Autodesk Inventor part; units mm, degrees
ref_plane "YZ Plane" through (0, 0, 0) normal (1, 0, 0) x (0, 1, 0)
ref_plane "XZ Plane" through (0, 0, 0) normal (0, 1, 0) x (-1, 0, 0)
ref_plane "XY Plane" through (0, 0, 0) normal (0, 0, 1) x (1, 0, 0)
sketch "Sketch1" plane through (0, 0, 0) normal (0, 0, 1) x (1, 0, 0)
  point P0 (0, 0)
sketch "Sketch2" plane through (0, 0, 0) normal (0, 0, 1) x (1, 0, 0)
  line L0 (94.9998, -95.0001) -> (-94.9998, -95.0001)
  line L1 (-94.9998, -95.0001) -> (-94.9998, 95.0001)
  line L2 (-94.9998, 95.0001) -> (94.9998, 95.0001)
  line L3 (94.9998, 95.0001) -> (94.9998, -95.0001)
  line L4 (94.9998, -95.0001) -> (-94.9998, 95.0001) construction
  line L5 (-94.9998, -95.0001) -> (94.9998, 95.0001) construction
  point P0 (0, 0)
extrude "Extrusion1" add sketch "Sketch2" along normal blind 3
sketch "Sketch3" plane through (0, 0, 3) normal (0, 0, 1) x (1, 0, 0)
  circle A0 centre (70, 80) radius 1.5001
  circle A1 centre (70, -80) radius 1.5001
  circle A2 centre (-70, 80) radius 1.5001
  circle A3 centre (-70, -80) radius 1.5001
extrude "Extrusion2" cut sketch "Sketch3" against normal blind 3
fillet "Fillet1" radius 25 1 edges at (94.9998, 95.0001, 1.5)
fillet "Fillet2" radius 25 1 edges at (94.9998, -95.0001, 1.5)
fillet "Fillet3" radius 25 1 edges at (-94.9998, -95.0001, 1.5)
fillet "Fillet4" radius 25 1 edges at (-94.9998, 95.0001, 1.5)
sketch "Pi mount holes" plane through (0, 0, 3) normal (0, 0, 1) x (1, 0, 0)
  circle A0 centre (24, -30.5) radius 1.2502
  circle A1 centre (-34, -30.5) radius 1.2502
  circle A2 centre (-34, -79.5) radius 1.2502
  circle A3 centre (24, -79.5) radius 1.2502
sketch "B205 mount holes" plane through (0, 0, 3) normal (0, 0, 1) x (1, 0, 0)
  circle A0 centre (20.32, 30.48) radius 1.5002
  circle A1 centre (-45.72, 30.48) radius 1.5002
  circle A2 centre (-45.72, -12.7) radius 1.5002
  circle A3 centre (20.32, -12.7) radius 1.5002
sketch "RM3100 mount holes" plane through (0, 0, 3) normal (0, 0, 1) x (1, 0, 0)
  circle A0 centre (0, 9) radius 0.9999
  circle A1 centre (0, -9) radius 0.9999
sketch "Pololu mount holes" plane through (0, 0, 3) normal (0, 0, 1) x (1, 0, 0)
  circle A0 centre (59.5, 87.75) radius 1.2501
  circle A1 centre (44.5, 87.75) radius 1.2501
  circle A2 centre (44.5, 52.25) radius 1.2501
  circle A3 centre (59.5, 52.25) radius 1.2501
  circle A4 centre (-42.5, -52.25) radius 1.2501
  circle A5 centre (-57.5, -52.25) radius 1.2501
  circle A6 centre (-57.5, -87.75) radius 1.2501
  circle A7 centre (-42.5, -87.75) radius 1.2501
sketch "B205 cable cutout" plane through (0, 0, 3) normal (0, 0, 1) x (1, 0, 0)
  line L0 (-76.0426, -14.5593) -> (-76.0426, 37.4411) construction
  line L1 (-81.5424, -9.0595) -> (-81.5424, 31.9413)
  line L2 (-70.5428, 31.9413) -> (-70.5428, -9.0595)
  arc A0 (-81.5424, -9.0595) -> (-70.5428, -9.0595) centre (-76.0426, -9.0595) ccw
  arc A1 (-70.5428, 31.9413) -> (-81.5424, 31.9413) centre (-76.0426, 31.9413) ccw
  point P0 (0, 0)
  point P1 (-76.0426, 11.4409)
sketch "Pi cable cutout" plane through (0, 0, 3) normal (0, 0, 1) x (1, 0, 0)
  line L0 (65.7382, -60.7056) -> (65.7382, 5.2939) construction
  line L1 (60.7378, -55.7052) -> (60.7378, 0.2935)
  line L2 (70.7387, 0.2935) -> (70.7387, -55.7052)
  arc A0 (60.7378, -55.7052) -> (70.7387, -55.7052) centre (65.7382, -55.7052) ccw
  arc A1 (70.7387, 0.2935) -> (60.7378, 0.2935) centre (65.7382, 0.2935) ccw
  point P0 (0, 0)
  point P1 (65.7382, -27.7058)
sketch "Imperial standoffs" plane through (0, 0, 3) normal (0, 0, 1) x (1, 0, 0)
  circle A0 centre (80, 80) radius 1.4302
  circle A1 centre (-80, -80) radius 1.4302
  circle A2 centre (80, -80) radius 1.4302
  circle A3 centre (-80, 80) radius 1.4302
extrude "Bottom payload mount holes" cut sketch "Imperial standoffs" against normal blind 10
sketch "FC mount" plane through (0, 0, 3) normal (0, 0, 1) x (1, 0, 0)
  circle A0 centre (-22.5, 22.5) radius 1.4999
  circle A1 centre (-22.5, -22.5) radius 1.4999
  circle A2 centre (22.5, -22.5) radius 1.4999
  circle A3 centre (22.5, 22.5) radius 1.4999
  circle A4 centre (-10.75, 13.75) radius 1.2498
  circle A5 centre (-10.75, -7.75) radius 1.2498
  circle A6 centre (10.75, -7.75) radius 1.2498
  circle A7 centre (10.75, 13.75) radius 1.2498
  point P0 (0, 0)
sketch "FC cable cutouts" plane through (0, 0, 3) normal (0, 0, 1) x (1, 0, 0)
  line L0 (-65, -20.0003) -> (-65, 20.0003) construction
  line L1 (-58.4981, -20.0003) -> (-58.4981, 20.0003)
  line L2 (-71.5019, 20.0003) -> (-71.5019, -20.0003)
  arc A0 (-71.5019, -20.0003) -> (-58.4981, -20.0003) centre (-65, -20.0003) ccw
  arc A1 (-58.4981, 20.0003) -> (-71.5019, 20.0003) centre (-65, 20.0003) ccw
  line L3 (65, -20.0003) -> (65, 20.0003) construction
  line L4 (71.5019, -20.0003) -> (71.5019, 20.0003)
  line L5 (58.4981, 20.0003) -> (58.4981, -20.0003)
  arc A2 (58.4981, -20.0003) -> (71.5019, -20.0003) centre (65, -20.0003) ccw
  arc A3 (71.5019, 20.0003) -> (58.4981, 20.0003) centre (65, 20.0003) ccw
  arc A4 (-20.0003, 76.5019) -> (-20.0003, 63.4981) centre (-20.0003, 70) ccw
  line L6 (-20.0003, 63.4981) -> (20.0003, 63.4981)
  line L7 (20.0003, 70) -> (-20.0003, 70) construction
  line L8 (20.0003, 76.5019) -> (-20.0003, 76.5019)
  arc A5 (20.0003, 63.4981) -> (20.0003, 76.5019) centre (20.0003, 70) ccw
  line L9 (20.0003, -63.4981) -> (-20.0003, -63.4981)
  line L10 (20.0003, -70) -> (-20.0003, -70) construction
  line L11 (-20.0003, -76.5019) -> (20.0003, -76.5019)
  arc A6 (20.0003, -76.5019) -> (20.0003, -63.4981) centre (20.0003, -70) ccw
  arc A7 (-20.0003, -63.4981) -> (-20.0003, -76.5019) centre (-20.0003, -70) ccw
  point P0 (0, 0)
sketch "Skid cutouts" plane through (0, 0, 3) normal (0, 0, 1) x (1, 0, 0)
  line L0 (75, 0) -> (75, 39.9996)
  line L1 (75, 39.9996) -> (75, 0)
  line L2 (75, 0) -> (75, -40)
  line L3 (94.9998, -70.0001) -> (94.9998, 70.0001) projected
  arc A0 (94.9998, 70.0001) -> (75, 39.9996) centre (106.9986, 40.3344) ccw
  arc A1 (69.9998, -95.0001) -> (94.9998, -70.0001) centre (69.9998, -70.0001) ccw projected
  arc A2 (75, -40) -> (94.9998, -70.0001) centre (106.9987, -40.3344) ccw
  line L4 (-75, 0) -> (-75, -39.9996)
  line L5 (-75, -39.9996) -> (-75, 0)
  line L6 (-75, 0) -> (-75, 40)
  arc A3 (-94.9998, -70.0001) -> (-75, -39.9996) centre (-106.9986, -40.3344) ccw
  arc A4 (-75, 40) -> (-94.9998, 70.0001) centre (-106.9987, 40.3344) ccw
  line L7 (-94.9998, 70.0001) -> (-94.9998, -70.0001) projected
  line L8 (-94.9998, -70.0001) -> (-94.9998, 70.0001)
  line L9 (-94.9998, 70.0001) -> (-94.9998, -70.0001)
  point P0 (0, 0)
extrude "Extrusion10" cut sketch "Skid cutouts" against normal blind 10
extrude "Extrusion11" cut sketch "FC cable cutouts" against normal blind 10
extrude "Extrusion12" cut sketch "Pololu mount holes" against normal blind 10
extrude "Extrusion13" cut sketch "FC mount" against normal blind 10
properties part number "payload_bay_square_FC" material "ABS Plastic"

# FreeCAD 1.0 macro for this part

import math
import FreeCAD as App
import Part
import Sketcher
from FreeCAD import Vector


def edges_at(feature, points):
    """Names of the edges that pass closest to the given points."""
    edges = feature.Shape.Edges
    near = lambda p: min(range(len(edges)), key=lambda i: edges[i].distToShape(Part.Vertex(*p))[0])
    return sorted({f"Edge{near(p) + 1}" for p in points})


def add_polygon(sketch, points):
    """Adds a closed chain of lines whose ends are joined by coincident constraints."""
    first, n = sketch.GeometryCount, len(points)
    for a, b in zip(points, points[1:] + points[:1]):
        sketch.addGeometry(Part.LineSegment(App.Vector(*a, 0), App.Vector(*b, 0)), False)
    for i in range(n):
        sketch.addConstraint(Sketcher.Constraint("Coincident", first + i, 2, first + (i + 1) % n, 1))

doc = App.newDocument("Part")
body = doc.addObject("PartDesign::Body", "Body")

# Sketch on XY plane
sketch1 = body.newObject("Sketcher::SketchObject", "Sketch")
sketch1.AttachmentSupport = (doc.getObject("XY_Plane"), [""])
sketch1.MapMode = "FlatFace"
add_polygon(sketch1, [(-95, -95), (95, -95), (95, 95), (-95, 95)])  # lines 0-3
sketch1.addConstraint([
    Sketcher.Constraint("Horizontal", 0),
    Sketcher.Constraint("Vertical", 1),
    Sketcher.Constraint("Horizontal", 2),
    Sketcher.Constraint("Vertical", 3),
    Sketcher.Constraint("Symmetric", 0, 2, 2, 2, -1, 1),
    Sketcher.Constraint("DistanceY", 0, 2, -1, 1, 95.0),
    Sketcher.Constraint("DistanceX", 0, 1, 0, 2, 189.9996),
])
pad1 = body.newObject("PartDesign::Pad", "Pad")
pad1.Profile = sketch1
pad1.Length = 3

# Sketch on XY plane
sketch2 = body.newObject("Sketcher::SketchObject", "Sketch001")
sketch2.AttachmentSupport = (doc.getObject("XY_Plane"), [""])
sketch2.MapMode = "FlatFace"
sketch2.AttachmentOffset = App.Placement(Vector(0, 0, 3), App.Rotation())
sketch2.addGeometry([
    Part.Circle(Vector(70, 80, 0), Vector(0, 0, 1), 1.5),
    Part.Circle(Vector(70, -80, 0), Vector(0, 0, 1), 1.5),
    Part.Circle(Vector(-70, 80, 0), Vector(0, 0, 1), 1.5),
    Part.Circle(Vector(-70, -80, 0), Vector(0, 0, 1), 1.5),
], False)
sketch2.addConstraint([
    Sketcher.Constraint("Equal", 0, 1),
    Sketcher.Constraint("Equal", 1, 2),
    Sketcher.Constraint("Equal", 2, 3),
    Sketcher.Constraint("Symmetric", 1, 3, 2, 3, -1, 1),
    Sketcher.Constraint("Symmetric", 0, 3, 3, 3, -1, 1),
    Sketcher.Constraint("Symmetric", 0, 3, 2, 3, -2),
    Sketcher.Constraint("DistanceX", -1, 1, 0, 3, 70.0),
    Sketcher.Constraint("DistanceY", -1, 1, 0, 3, 80.0),
    Sketcher.Constraint("Diameter", 0, 3.0002),
])
pocket1 = body.newObject("PartDesign::Pocket", "Pocket")
pocket1.Profile = sketch2
pocket1.Length = 3
doc.recompute()

fillet = body.newObject("PartDesign::Fillet", "Fillet")
fillet.Base = (pocket1, edges_at(pocket1, [(95, 95, 1.5)]))
fillet.Radius = 25
doc.recompute()

fillet2 = body.newObject("PartDesign::Fillet", "Fillet001")
fillet2.Base = (fillet, edges_at(fillet, [(95, -95, 1.5)]))
fillet2.Radius = 25
doc.recompute()

fillet3 = body.newObject("PartDesign::Fillet", "Fillet002")
fillet3.Base = (fillet2, edges_at(fillet2, [(-95, -95, 1.5)]))
fillet3.Radius = 25
doc.recompute()

fillet4 = body.newObject("PartDesign::Fillet", "Fillet003")
fillet4.Base = (fillet3, edges_at(fillet3, [(-95, 95, 1.5)]))
fillet4.Radius = 25

# Sketch on XY plane
sketch3 = body.newObject("Sketcher::SketchObject", "Sketch002")
sketch3.AttachmentSupport = (doc.getObject("XY_Plane"), [""])
sketch3.MapMode = "FlatFace"
sketch3.AttachmentOffset = App.Placement(Vector(0, 0, 3), App.Rotation())
sketch3.addGeometry([
    Part.Circle(Vector(80, 80, 0), Vector(0, 0, 1), 1.4),
    Part.Circle(Vector(-80, -80, 0), Vector(0, 0, 1), 1.4),
    Part.Circle(Vector(80, -80, 0), Vector(0, 0, 1), 1.4),
    Part.Circle(Vector(-80, 80, 0), Vector(0, 0, 1), 1.4),
], False)
sketch3.addConstraint([
    Sketcher.Constraint("Equal", 0, 1),
    Sketcher.Constraint("Equal", 1, 2),
    Sketcher.Constraint("Equal", 2, 3),
    Sketcher.Constraint("Symmetric", 0, 3, 1, 3, -1, 1),
    Sketcher.Constraint("Symmetric", 2, 3, 3, 3, -1, 1),
    Sketcher.Constraint("Symmetric", 1, 3, 2, 3, -2),
    Sketcher.Constraint("DistanceX", -1, 1, 0, 3, 80.0),
    Sketcher.Constraint("DistanceY", -1, 1, 0, 3, 80.0),
    Sketcher.Constraint("Diameter", 0, 2.8604),
])
pocket2 = body.newObject("PartDesign::Pocket", "Pocket001")
pocket2.Profile = sketch3
pocket2.Length = 10

# Sketch on XY plane
sketch4 = body.newObject("Sketcher::SketchObject", "Sketch003")
sketch4.AttachmentSupport = (doc.getObject("XY_Plane"), [""])
sketch4.MapMode = "FlatFace"
sketch4.AttachmentOffset = App.Placement(Vector(0, 0, 3), App.Rotation())
sketch4.addGeometry([
    Part.LineSegment(Vector(75, 40, 0), Vector(75, -40, 0)),  # 0
    Part.ArcOfCircle(Part.Circle(Vector(107, -40, 0), Vector(0, 0, 1), 32), math.radians(179), math.radians(248)),  # 1
    Part.LineSegment(Vector(95, -70, 0), Vector(95, 70, 0)),  # 2
    Part.ArcOfCircle(Part.Circle(Vector(107, 40, 0), Vector(0, 0, 1), 32), math.radians(112), math.radians(181)),  # 3
    Part.LineSegment(Vector(-75, -40, 0), Vector(-75, 40, 0)),  # 4
    Part.ArcOfCircle(Part.Circle(Vector(-107, 40, 0), Vector(0, 0, 1), 32), math.radians(-1), math.radians(68)),  # 5
    Part.LineSegment(Vector(-95, 70, 0), Vector(-95, -70, 0)),  # 6
    Part.ArcOfCircle(Part.Circle(Vector(-107, -40, 0), Vector(0, 0, 1), 32), math.radians(-68), math.radians(1)),  # 7
], False)
sketch4.addConstraint([
    Sketcher.Constraint("Coincident", 0, 2, 1, 1),
    Sketcher.Constraint("Coincident", 1, 2, 2, 1),
    Sketcher.Constraint("Coincident", 2, 2, 3, 1),
    Sketcher.Constraint("Coincident", 3, 2, 0, 1),
    Sketcher.Constraint("Coincident", 4, 2, 5, 1),
    Sketcher.Constraint("Coincident", 5, 2, 6, 1),
    Sketcher.Constraint("Coincident", 6, 2, 7, 1),
    Sketcher.Constraint("Coincident", 7, 2, 4, 1),
    Sketcher.Constraint("Vertical", 0),
    Sketcher.Constraint("Vertical", 2),
    Sketcher.Constraint("Vertical", 4),
    Sketcher.Constraint("Vertical", 6),
    Sketcher.Constraint("Equal", 1, 3),
    Sketcher.Constraint("Equal", 3, 5),
    Sketcher.Constraint("Equal", 5, 7),
    Sketcher.Constraint("Symmetric", 1, 3, 5, 3, -1, 1),
    Sketcher.Constraint("Symmetric", 3, 3, 7, 3, -1, 1),
    Sketcher.Constraint("Symmetric", 3, 3, 5, 3, -2),
    Sketcher.Constraint("Horizontal", 2, 2, 5, 2),
    Sketcher.Constraint("Equal", 0, 4),
    Sketcher.Constraint("DistanceX", -1, 1, 0, 2, 75.0),
    Sketcher.Constraint("DistanceY", 0, 2, -1, 1, 40.0),
    Sketcher.Constraint("DistanceY", 1, 2, -1, 1, 70.0),
    Sketcher.Constraint("Radius", 1, 32.0004),
    Sketcher.Constraint("DistanceX", 1, 2, 1, 3, 11.999),
])
pocket3 = body.newObject("PartDesign::Pocket", "Pocket002")
pocket3.Profile = sketch4
pocket3.Length = 10

# Sketch on XY plane
sketch5 = body.newObject("Sketcher::SketchObject", "Sketch004")
sketch5.AttachmentSupport = (doc.getObject("XY_Plane"), [""])
sketch5.MapMode = "FlatFace"
sketch5.AttachmentOffset = App.Placement(Vector(0, 0, 3), App.Rotation())
sketch5.addGeometry([
    Part.ArcOfCircle(Part.Circle(Vector(-65, -20, 0), Vector(0, 0, 1), 7), math.radians(180), math.radians(360)),  # 0
    Part.LineSegment(Vector(-58, -20, 0), Vector(-58, 20, 0)),  # 1
    Part.ArcOfCircle(Part.Circle(Vector(-65, 20, 0), Vector(0, 0, 1), 7), math.radians(0), math.radians(180)),  # 2
    Part.LineSegment(Vector(-72, 20, 0), Vector(-72, -20, 0)),  # 3
    Part.ArcOfCircle(Part.Circle(Vector(65, -20, 0), Vector(0, 0, 1), 7), math.radians(180), math.radians(360)),  # 4
    Part.LineSegment(Vector(72, -20, 0), Vector(72, 20, 0)),  # 5
    Part.ArcOfCircle(Part.Circle(Vector(65, 20, 0), Vector(0, 0, 1), 7), math.radians(0), math.radians(180)),  # 6
    Part.LineSegment(Vector(58, 20, 0), Vector(58, -20, 0)),  # 7
    Part.LineSegment(Vector(20, 77, 0), Vector(-20, 77, 0)),  # 8
    Part.ArcOfCircle(Part.Circle(Vector(-20, 70, 0), Vector(0, 0, 1), 7), math.radians(90), math.radians(270)),  # 9
    Part.LineSegment(Vector(-20, 63, 0), Vector(20, 63, 0)),  # 10
    Part.ArcOfCircle(Part.Circle(Vector(20, 70, 0), Vector(0, 0, 1), 7), math.radians(-90), math.radians(90)),  # 11
    Part.ArcOfCircle(Part.Circle(Vector(20, -70, 0), Vector(0, 0, 1), 7), math.radians(-90), math.radians(90)),  # 12
    Part.LineSegment(Vector(20, -63, 0), Vector(-20, -63, 0)),  # 13
    Part.ArcOfCircle(Part.Circle(Vector(-20, -70, 0), Vector(0, 0, 1), 7), math.radians(90), math.radians(270)),  # 14
    Part.LineSegment(Vector(-20, -77, 0), Vector(20, -77, 0)),  # 15
], False)
sketch5.addConstraint([
    Sketcher.Constraint("Tangent", 0, 2, 1, 1),
    Sketcher.Constraint("Tangent", 1, 2, 2, 1),
    Sketcher.Constraint("Tangent", 2, 2, 3, 1),
    Sketcher.Constraint("Tangent", 3, 2, 0, 1),
    Sketcher.Constraint("Tangent", 4, 2, 5, 1),
    Sketcher.Constraint("Tangent", 5, 2, 6, 1),
    Sketcher.Constraint("Tangent", 6, 2, 7, 1),
    Sketcher.Constraint("Tangent", 7, 2, 4, 1),
    Sketcher.Constraint("Tangent", 8, 2, 9, 1),
    Sketcher.Constraint("Tangent", 9, 2, 10, 1),
    Sketcher.Constraint("Tangent", 10, 2, 11, 1),
    Sketcher.Constraint("Tangent", 11, 2, 8, 1),
    Sketcher.Constraint("Tangent", 12, 2, 13, 1),
    Sketcher.Constraint("Tangent", 13, 2, 14, 1),
    Sketcher.Constraint("Tangent", 14, 2, 15, 1),
    Sketcher.Constraint("Tangent", 15, 2, 12, 1),
    Sketcher.Constraint("Vertical", 1),
    Sketcher.Constraint("Vertical", 3),
    Sketcher.Constraint("Vertical", 5),
    Sketcher.Constraint("Vertical", 7),
    Sketcher.Constraint("Horizontal", 8),
    Sketcher.Constraint("Horizontal", 10),
    Sketcher.Constraint("Horizontal", 13),
    Sketcher.Constraint("Horizontal", 15),
    Sketcher.Constraint("Equal", 2, 4),
    Sketcher.Constraint("Equal", 6, 9),
    Sketcher.Constraint("Equal", 11, 12),
    Sketcher.Constraint("Symmetric", 2, 3, 4, 3, -1, 1),
    Sketcher.Constraint("Symmetric", 9, 3, 12, 3, -1, 1),
    Sketcher.Constraint("Horizontal", 0, 3, 4, 3),
    Sketcher.Constraint("Horizontal", 2, 3, 6, 3),
    Sketcher.Constraint("Vertical", 11, 3, 12, 3),
    Sketcher.Constraint("Vertical", 9, 3, 14, 3),
    Sketcher.Constraint("Equal", 15, 1),
    Sketcher.Constraint("DistanceX", 0, 3, -1, 1, 65.0),
    Sketcher.Constraint("DistanceY", -1, 1, 9, 3, 70.0),
    Sketcher.Constraint("Radius", 0, 6.502),
    Sketcher.Constraint("DistanceX", 8, 2, 8, 1, 40.0006),
])
pocket4 = body.newObject("PartDesign::Pocket", "Pocket003")
pocket4.Profile = sketch5
pocket4.Length = 10

# Sketch on XY plane
sketch6 = body.newObject("Sketcher::SketchObject", "Sketch005")
sketch6.AttachmentSupport = (doc.getObject("XY_Plane"), [""])
sketch6.MapMode = "FlatFace"
sketch6.AttachmentOffset = App.Placement(Vector(0, 0, 3), App.Rotation())
sketch6.addGeometry([
    Part.Circle(Vector(59.5, 87.8, 0), Vector(0, 0, 1), 1.3),  # 0
    Part.Circle(Vector(44.5, 87.8, 0), Vector(0, 0, 1), 1.3),  # 1
    Part.Circle(Vector(44.5, 52.2, 0), Vector(0, 0, 1), 1.3),  # 2
    Part.Circle(Vector(59.5, 52.2, 0), Vector(0, 0, 1), 1.3),  # 3
    Part.Circle(Vector(-42.5, -52.2, 0), Vector(0, 0, 1), 1.3),  # 4
    Part.Circle(Vector(-57.5, -52.2, 0), Vector(0, 0, 1), 1.3),  # 5
    Part.Circle(Vector(-57.5, -87.8, 0), Vector(0, 0, 1), 1.3),  # 6
    Part.Circle(Vector(-42.5, -87.8, 0), Vector(0, 0, 1), 1.3),  # 7
], False)
sketch6.addConstraint([
    Sketcher.Constraint("Equal", 0, 1),
    Sketcher.Constraint("Equal", 1, 2),
    Sketcher.Constraint("Equal", 2, 3),
    Sketcher.Constraint("Equal", 3, 4),
    Sketcher.Constraint("Equal", 4, 5),
    Sketcher.Constraint("Equal", 5, 6),
    Sketcher.Constraint("Equal", 6, 7),
    Sketcher.Constraint("Horizontal", 0, 3, 1, 3),
    Sketcher.Constraint("Horizontal", 2, 3, 3, 3),
    Sketcher.Constraint("Horizontal", 4, 3, 5, 3),
    Sketcher.Constraint("Horizontal", 6, 3, 7, 3),
    Sketcher.Constraint("Vertical", 1, 3, 2, 3),
    Sketcher.Constraint("Vertical", 0, 3, 3, 3),
    Sketcher.Constraint("Vertical", 5, 3, 6, 3),
    Sketcher.Constraint("Vertical", 4, 3, 7, 3),
    Sketcher.Constraint("DistanceX", 1, 3, 0, 3, 15.0),
    Sketcher.Constraint("DistanceX", 4, 3, 2, 3, 87.0),
    Sketcher.Constraint("DistanceY", 4, 3, 1, 3, 140.0),
    Sketcher.Constraint("DistanceX", 5, 3, 4, 3, 15.0),
    Sketcher.Constraint("DistanceY", 6, 3, 2, 3, 140.0),
    Sketcher.Constraint("Diameter", 0, 2.5002),
    Sketcher.Constraint("DistanceX", -1, 1, 0, 3, 59.5),
    Sketcher.Constraint("DistanceY", 2, 3, 1, 3, 35.5),
    Sketcher.Constraint("DistanceY", -1, 1, 0, 3, 87.75),
])
pocket5 = body.newObject("PartDesign::Pocket", "Pocket004")
pocket5.Profile = sketch6
pocket5.Length = 10

# Sketch on XY plane
sketch7 = body.newObject("Sketcher::SketchObject", "Sketch006")
sketch7.AttachmentSupport = (doc.getObject("XY_Plane"), [""])
sketch7.MapMode = "FlatFace"
sketch7.AttachmentOffset = App.Placement(Vector(0, 0, 3), App.Rotation())
sketch7.addGeometry([
    Part.Circle(Vector(-22.5, 22.5, 0), Vector(0, 0, 1), 1.5),  # 0
    Part.Circle(Vector(-22.5, -22.5, 0), Vector(0, 0, 1), 1.5),  # 1
    Part.Circle(Vector(22.5, -22.5, 0), Vector(0, 0, 1), 1.5),  # 2
    Part.Circle(Vector(22.5, 22.5, 0), Vector(0, 0, 1), 1.5),  # 3
    Part.Circle(Vector(-10.8, 13.8, 0), Vector(0, 0, 1), 1.2),  # 4
    Part.Circle(Vector(-10.8, -7.8, 0), Vector(0, 0, 1), 1.2),  # 5
    Part.Circle(Vector(10.8, -7.8, 0), Vector(0, 0, 1), 1.2),  # 6
    Part.Circle(Vector(10.8, 13.8, 0), Vector(0, 0, 1), 1.2),  # 7
], False)
sketch7.addConstraint([
    Sketcher.Constraint("Equal", 0, 1),
    Sketcher.Constraint("Equal", 1, 2),
    Sketcher.Constraint("Equal", 2, 3),
    Sketcher.Constraint("Equal", 4, 5),
    Sketcher.Constraint("Equal", 5, 6),
    Sketcher.Constraint("Equal", 6, 7),
    Sketcher.Constraint("Symmetric", 0, 3, 2, 3, -1, 1),
    Sketcher.Constraint("Symmetric", 1, 3, 3, 3, -1, 1),
    Sketcher.Constraint("Symmetric", 1, 3, 2, 3, -2),
    Sketcher.Constraint("Symmetric", 5, 3, 6, 3, -2),
    Sketcher.Constraint("Symmetric", 4, 3, 7, 3, -2),
    Sketcher.Constraint("Vertical", 4, 3, 5, 3),
    Sketcher.Constraint("DistanceY", 1, 3, 0, 3, 45.0),
    Sketcher.Constraint("DistanceX", 1, 3, 2, 3, 45.0),
    Sketcher.Constraint("Diameter", 0, 2.9998),
    Sketcher.Constraint("Diameter", 4, 2.4996),
    Sketcher.Constraint("DistanceY", 5, 3, 4, 3, 21.5),
    Sketcher.Constraint("DistanceX", 5, 3, 6, 3, 21.5),
    Sketcher.Constraint("DistanceY", -1, 1, 4, 3, 13.75),
])
pocket6 = body.newObject("PartDesign::Pocket", "Pocket005")
pocket6.Profile = sketch7
pocket6.Length = 10

doc.recompute()
